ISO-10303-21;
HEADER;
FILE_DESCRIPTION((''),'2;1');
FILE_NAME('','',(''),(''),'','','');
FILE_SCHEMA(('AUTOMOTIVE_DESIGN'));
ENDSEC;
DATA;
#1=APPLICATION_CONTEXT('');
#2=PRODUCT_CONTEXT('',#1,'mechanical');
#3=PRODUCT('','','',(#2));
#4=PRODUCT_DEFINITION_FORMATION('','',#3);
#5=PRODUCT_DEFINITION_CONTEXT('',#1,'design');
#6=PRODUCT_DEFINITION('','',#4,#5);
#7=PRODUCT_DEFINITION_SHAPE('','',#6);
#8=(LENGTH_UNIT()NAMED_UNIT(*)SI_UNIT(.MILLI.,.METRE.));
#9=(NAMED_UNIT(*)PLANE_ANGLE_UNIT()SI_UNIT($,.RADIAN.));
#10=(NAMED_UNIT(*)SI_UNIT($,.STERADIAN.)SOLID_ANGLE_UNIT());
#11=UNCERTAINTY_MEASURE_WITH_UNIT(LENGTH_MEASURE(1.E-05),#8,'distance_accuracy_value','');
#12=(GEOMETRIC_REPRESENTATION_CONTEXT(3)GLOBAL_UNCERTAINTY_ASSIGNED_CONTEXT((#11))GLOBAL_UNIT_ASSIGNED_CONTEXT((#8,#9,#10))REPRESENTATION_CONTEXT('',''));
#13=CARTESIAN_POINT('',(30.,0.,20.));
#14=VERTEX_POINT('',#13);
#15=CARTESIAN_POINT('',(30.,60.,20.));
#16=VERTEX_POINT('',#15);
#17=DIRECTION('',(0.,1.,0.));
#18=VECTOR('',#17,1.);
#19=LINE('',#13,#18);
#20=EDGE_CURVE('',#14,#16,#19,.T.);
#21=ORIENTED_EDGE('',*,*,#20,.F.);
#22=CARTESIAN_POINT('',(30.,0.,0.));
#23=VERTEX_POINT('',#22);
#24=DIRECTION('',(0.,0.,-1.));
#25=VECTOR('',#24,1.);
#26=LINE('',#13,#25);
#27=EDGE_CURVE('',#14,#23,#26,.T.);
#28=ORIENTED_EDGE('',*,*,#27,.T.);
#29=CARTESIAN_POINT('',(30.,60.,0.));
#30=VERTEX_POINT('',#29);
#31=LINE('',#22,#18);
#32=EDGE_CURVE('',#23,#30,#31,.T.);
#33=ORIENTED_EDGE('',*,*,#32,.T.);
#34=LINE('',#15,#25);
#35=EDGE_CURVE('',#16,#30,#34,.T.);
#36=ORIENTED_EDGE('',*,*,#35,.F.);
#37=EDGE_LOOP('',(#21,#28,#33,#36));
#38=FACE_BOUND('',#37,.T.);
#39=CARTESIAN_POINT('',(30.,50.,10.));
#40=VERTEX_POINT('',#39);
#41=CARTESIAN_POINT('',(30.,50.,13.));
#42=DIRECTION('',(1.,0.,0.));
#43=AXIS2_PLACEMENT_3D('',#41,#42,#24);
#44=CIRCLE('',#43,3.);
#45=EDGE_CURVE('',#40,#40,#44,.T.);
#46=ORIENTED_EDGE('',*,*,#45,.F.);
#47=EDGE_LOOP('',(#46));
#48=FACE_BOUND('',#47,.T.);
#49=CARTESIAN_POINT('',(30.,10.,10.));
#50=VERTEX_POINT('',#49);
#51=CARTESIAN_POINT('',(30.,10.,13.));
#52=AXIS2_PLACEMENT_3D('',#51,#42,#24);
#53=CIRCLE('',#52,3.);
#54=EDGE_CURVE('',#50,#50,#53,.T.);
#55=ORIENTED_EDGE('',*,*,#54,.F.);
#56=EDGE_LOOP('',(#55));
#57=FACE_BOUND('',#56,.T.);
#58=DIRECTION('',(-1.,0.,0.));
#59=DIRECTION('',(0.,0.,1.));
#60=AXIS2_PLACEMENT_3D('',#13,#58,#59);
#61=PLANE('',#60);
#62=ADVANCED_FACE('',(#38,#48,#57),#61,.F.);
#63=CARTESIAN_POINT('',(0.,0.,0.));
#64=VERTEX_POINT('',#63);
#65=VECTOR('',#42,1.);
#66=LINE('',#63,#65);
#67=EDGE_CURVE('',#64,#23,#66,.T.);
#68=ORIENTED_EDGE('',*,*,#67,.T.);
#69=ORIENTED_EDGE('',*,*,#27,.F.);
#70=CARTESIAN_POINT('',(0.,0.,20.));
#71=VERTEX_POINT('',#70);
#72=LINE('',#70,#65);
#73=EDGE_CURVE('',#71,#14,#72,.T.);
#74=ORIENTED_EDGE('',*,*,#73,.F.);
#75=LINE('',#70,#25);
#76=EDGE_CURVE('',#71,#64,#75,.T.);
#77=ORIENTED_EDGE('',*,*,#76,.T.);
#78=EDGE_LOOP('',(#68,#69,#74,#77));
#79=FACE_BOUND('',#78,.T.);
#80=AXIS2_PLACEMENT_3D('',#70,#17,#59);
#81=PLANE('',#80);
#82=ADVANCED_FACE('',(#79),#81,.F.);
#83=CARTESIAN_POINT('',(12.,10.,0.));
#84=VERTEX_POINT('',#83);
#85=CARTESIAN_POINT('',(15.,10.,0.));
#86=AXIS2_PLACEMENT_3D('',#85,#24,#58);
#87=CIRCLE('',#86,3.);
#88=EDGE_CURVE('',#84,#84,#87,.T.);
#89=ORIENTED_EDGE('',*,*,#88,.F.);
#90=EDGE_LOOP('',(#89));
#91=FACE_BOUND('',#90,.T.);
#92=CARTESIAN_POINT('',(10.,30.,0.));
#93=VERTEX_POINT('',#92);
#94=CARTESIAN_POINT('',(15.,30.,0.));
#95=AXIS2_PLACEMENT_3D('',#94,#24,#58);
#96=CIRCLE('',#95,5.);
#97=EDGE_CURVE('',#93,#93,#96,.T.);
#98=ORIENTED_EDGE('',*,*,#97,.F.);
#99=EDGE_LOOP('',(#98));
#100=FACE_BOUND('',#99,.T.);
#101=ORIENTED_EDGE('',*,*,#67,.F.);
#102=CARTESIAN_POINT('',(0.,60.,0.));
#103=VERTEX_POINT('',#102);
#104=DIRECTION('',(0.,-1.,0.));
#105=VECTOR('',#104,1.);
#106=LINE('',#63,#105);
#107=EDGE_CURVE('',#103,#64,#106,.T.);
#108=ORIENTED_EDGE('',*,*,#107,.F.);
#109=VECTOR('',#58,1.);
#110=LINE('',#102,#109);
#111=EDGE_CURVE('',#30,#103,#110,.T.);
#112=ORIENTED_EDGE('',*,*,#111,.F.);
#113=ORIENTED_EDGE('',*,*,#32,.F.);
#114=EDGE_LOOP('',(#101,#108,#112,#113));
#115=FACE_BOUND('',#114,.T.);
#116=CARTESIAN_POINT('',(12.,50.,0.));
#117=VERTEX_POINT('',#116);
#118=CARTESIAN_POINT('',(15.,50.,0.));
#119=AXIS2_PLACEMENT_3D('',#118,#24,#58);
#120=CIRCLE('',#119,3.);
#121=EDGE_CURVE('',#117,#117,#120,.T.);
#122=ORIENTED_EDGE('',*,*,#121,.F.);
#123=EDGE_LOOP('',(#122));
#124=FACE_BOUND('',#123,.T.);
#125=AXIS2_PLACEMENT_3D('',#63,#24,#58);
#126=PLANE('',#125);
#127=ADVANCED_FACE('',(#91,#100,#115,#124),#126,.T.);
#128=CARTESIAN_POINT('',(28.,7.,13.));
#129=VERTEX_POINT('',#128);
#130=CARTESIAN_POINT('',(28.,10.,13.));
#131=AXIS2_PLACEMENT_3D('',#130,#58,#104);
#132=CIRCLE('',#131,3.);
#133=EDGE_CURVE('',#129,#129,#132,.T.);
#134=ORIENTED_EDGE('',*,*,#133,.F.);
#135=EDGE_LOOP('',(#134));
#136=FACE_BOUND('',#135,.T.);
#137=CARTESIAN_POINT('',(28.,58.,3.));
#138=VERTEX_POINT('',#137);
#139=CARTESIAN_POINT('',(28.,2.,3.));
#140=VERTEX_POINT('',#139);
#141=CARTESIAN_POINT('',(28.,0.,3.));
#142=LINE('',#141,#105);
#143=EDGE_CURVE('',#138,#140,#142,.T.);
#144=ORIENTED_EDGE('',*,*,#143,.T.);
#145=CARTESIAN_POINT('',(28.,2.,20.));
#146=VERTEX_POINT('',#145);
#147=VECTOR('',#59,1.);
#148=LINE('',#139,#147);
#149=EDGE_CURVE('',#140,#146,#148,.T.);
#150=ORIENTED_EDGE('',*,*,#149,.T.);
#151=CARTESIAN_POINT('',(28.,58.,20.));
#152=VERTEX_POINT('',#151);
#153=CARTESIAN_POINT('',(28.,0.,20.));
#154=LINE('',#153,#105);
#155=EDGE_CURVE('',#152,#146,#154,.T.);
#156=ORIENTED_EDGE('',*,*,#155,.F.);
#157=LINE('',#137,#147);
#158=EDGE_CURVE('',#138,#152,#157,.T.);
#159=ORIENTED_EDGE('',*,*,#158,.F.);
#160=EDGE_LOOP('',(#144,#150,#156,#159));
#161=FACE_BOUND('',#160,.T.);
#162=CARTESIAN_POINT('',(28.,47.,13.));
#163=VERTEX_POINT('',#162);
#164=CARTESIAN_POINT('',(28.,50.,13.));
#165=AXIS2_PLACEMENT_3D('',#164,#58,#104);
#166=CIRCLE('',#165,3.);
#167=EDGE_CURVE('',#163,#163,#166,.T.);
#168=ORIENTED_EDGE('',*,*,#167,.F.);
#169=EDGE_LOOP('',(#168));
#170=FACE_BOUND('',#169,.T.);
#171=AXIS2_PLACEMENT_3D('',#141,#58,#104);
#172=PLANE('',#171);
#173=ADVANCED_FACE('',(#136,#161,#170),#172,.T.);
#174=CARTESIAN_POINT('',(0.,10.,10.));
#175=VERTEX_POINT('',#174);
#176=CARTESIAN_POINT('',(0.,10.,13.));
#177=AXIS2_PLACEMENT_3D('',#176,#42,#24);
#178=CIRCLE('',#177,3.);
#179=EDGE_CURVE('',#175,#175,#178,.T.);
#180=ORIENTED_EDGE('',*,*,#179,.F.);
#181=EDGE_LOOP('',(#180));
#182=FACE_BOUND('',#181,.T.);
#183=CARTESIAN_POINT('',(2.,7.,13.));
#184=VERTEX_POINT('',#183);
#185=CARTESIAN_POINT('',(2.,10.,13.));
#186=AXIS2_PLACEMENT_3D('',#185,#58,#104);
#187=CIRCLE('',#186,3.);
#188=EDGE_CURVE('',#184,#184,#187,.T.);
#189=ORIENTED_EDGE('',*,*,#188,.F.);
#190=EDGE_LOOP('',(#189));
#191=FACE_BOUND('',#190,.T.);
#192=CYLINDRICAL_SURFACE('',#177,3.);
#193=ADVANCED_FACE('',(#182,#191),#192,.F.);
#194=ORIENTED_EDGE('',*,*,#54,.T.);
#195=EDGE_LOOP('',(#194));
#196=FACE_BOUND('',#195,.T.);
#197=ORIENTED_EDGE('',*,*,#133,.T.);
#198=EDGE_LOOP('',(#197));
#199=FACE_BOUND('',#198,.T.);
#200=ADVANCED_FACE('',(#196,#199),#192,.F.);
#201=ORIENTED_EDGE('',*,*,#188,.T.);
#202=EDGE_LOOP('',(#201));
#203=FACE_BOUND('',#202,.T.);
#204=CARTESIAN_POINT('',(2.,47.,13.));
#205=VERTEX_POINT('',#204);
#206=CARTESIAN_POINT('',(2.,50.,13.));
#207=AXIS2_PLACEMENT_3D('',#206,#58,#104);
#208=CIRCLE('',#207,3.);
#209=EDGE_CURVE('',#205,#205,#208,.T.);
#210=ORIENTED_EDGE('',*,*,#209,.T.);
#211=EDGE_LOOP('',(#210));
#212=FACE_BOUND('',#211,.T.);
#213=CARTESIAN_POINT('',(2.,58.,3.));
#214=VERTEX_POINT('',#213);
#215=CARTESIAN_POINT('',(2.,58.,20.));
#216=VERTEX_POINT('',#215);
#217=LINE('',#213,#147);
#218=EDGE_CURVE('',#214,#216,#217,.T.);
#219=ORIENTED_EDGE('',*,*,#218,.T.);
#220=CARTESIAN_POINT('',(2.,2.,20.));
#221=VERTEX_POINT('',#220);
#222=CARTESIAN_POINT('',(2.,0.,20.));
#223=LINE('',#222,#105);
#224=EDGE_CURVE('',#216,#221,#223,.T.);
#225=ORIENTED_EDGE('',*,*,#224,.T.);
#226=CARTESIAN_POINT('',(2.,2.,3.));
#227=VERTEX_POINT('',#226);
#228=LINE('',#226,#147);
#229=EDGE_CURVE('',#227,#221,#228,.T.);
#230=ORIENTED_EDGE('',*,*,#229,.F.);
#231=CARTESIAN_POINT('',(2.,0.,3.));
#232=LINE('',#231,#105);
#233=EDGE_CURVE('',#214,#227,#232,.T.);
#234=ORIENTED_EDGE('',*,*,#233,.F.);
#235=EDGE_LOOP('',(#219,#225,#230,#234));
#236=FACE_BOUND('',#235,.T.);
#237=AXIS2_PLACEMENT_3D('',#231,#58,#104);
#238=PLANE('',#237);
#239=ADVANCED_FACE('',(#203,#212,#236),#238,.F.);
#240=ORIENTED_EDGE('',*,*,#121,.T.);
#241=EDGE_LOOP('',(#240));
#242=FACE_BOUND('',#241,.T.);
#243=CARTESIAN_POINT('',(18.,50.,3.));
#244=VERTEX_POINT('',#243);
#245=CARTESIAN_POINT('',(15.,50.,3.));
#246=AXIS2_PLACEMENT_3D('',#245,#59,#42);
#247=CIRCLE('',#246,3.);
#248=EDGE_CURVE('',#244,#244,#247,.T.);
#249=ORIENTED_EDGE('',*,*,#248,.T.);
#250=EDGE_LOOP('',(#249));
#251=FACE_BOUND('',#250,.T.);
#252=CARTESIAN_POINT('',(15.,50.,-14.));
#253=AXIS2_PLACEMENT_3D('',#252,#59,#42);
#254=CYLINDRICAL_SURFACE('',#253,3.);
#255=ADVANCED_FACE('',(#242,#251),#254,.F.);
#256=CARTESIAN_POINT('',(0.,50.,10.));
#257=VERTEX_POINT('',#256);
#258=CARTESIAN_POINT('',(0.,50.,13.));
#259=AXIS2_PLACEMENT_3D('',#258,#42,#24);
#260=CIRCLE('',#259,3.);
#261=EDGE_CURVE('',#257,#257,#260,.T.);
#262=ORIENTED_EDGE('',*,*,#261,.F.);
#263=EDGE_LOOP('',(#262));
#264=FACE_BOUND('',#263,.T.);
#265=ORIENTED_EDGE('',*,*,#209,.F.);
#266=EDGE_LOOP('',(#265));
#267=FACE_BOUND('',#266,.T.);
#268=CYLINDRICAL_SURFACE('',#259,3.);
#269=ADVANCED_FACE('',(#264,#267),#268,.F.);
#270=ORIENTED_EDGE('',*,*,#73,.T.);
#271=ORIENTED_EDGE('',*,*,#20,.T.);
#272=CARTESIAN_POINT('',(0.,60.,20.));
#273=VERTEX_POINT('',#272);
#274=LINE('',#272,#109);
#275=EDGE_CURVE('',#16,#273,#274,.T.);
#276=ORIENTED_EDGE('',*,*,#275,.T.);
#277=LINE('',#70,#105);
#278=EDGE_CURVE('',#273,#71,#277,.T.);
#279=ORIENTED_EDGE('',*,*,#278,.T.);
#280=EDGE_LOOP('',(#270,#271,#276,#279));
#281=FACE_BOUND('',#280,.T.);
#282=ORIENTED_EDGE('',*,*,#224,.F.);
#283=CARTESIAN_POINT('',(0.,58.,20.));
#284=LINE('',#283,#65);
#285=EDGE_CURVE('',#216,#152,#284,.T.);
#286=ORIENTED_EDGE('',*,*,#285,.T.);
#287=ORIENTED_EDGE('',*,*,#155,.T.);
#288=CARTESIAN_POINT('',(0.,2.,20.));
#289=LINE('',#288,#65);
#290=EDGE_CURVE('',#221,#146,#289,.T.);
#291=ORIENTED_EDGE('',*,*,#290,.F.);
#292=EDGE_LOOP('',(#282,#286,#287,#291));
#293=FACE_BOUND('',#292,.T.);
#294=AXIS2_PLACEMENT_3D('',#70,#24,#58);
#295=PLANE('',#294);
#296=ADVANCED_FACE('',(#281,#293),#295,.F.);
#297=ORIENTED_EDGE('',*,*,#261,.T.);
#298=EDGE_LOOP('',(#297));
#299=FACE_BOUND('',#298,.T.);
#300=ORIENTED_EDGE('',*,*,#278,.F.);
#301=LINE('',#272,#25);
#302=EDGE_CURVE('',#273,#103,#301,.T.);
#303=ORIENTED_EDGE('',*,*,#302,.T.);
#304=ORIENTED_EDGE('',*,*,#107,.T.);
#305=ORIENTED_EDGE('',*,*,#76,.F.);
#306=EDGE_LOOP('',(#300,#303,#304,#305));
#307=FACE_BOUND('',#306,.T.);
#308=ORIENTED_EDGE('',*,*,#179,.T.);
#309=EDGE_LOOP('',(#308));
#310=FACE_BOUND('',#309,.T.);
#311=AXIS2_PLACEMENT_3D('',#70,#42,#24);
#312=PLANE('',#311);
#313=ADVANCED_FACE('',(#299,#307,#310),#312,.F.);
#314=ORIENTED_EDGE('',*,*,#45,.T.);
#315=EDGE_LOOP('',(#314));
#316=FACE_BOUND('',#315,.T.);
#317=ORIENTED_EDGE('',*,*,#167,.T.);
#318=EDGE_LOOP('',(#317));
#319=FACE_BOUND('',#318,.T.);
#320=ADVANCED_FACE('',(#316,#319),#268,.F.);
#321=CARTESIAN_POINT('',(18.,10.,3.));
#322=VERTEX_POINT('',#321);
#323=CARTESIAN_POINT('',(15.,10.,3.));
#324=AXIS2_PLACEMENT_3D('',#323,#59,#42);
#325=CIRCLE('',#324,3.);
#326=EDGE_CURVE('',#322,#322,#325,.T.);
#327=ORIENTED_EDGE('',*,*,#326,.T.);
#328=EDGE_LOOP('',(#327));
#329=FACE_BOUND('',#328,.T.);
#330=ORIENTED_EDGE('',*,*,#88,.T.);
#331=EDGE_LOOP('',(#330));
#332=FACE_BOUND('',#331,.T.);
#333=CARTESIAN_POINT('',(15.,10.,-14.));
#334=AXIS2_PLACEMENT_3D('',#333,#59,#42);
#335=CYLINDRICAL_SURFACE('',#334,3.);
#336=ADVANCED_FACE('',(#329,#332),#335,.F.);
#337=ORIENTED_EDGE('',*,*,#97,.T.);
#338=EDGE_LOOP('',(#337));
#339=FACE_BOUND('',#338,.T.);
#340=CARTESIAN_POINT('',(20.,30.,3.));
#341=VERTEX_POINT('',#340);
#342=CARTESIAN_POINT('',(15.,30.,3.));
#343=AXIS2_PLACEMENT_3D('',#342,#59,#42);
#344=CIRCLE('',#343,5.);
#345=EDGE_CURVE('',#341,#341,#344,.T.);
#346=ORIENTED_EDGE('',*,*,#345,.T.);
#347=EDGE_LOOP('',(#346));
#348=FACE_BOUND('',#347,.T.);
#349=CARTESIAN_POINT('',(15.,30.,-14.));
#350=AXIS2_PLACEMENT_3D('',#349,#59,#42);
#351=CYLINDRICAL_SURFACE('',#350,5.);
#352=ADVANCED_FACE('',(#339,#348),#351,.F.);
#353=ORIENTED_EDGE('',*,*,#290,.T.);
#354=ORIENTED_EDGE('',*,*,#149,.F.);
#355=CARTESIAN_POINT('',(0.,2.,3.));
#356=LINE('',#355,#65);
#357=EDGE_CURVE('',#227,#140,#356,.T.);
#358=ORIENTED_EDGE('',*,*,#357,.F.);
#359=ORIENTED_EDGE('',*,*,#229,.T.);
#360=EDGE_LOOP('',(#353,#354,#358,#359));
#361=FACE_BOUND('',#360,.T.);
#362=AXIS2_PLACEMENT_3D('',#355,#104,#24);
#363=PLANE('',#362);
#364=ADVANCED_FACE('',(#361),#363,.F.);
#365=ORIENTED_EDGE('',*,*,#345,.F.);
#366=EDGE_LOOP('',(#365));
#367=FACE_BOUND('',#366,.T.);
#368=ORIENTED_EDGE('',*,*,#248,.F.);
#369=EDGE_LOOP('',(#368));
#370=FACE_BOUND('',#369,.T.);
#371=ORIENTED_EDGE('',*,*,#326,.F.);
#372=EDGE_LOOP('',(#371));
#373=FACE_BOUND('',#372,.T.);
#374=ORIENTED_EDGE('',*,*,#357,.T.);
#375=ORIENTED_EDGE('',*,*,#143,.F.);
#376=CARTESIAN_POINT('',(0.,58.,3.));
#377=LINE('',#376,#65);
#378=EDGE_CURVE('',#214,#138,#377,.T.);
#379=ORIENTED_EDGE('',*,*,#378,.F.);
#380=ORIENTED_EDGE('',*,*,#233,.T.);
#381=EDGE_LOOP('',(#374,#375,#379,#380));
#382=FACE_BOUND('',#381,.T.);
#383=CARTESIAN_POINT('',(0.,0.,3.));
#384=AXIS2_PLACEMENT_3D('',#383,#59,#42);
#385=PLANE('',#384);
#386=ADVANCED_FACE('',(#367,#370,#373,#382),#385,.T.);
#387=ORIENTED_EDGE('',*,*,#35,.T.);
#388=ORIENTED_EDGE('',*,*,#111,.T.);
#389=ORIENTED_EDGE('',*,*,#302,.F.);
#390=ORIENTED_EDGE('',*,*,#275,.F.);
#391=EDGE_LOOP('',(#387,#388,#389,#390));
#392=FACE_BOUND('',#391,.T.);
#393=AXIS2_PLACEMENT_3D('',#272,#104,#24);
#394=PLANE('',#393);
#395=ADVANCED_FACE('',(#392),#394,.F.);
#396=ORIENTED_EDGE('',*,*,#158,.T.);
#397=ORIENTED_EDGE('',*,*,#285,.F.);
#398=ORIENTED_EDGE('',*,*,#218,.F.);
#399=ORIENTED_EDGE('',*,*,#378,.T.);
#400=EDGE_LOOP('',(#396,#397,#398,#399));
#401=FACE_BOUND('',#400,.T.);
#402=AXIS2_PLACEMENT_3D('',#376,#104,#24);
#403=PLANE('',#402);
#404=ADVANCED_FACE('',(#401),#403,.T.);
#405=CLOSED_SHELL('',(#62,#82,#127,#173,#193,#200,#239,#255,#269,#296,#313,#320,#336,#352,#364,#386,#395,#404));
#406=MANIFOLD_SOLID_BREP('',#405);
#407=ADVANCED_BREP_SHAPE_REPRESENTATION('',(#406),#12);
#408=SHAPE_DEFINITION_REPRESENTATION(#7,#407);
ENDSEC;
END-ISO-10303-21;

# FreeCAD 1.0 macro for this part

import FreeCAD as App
import Part
import Sketcher


def add_polygon(sketch, points):
    """Adds a closed chain of lines whose ends are joined by coincident constraints."""
    first, n = sketch.GeometryCount, len(points)
    for a, b in zip(points, points[1:] + points[:1]):
        sketch.addGeometry(Part.LineSegment(App.Vector(*a, 0), App.Vector(*b, 0)), False)
    for i in range(n):
        sketch.addConstraint(Sketcher.Constraint("Coincident", first + i, 2, first + (i + 1) % n, 1))

doc = App.newDocument("Part")
body = doc.addObject("PartDesign::Body", "Body")

# Sketch on XY plane
sketch1 = body.newObject("Sketcher::SketchObject", "Sketch")
sketch1.AttachmentSupport = (doc.getObject("XY_Plane"), [""])
sketch1.MapMode = "FlatFace"
add_polygon(sketch1, [(0, 60), (0, 0), (30, 0), (30, 60)])  # lines 0-3
sketch1.addConstraint([
    Sketcher.Constraint("Vertical", 0),
    Sketcher.Constraint("Horizontal", 1),
    Sketcher.Constraint("Vertical", 2),
    Sketcher.Constraint("Horizontal", 3),
    Sketcher.Constraint("Coincident", 0, 2, -1, 1),
    Sketcher.Constraint("DistanceX", 1, 1, 1, 2, 30.0),
    Sketcher.Constraint("DistanceY", 0, 2, 0, 1, 60.0),
])
pad1 = body.newObject("PartDesign::Pad", "Pad")
pad1.Profile = sketch1
pad1.Length = 20

# Sketch on XY plane
sketch2 = body.newObject("Sketcher::SketchObject", "Sketch001")
sketch2.AttachmentSupport = (doc.getObject("XY_Plane"), [""])
sketch2.MapMode = "FlatFace"
sketch2.AttachmentOffset = App.Placement(App.Vector(0, 0, 20), App.Rotation())
add_polygon(sketch2, [(28, 58), (2, 58), (2, 2), (28, 2)])  # lines 0-3
sketch2.addConstraint([
    Sketcher.Constraint("Horizontal", 0),
    Sketcher.Constraint("Vertical", 1),
    Sketcher.Constraint("Horizontal", 2),
    Sketcher.Constraint("Vertical", 3),
    Sketcher.Constraint("DistanceX", 0, 2, 0, 1, 26.0),
    Sketcher.Constraint("DistanceY", 1, 2, 1, 1, 56.0),
    Sketcher.Constraint("DistanceX", -1, 1, 0, 2, 2.0),
    Sketcher.Constraint("DistanceY", -1, 1, 0, 2, 58.0),
])
pocket1 = body.newObject("PartDesign::Pocket", "Pocket")
pocket1.Profile = sketch2
pocket1.Length = 17

# Sketch on XY plane
sketch3 = body.newObject("Sketcher::SketchObject", "Sketch002")
sketch3.AttachmentSupport = (doc.getObject("XY_Plane"), [""])
sketch3.MapMode = "FlatFace"
sketch3.AttachmentOffset = App.Placement(App.Vector(0, 0, 3), App.Rotation())
sketch3.addGeometry([
    Part.Circle(App.Vector(15, 10, 0), App.Vector(0, 0, 1), 3),
    Part.Circle(App.Vector(15, 50, 0), App.Vector(0, 0, 1), 3),
    Part.Circle(App.Vector(15, 30, 0), App.Vector(0, 0, 1), 5),
], False)
sketch3.addConstraint([
    Sketcher.Constraint("Equal", 0, 1),
    Sketcher.Constraint("Vertical", 0, 3, 1, 3),
    Sketcher.Constraint("Vertical", 1, 3, 2, 3),
    Sketcher.Constraint("Diameter", 0, 6.0),
    Sketcher.Constraint("Diameter", 2, 10.0),
    Sketcher.Constraint("DistanceX", -1, 1, 0, 3, 15.0),
    Sketcher.Constraint("DistanceY", -1, 1, 0, 3, 10.0),
    Sketcher.Constraint("DistanceY", -1, 1, 1, 3, 50.0),
    Sketcher.Constraint("DistanceY", -1, 1, 2, 3, 30.0),
])
pocket2 = body.newObject("PartDesign::Pocket", "Pocket001")
pocket2.Profile = sketch3
pocket2.Length = 17

# Sketch on YZ plane
sketch4 = body.newObject("Sketcher::SketchObject", "Sketch003")
sketch4.AttachmentSupport = (doc.getObject("YZ_Plane"), [""])
sketch4.MapMode = "FlatFace"
sketch4.AttachmentOffset = App.Placement(App.Vector(0, 0, 30), App.Rotation())
sketch4.addGeometry([
    Part.Circle(App.Vector(50, 13, 0), App.Vector(0, 0, 1), 3),
    Part.Circle(App.Vector(10, 13, 0), App.Vector(0, 0, 1), 3),
], False)
sketch4.addConstraint([
    Sketcher.Constraint("Equal", 0, 1),
    Sketcher.Constraint("Horizontal", 0, 3, 1, 3),
    Sketcher.Constraint("Diameter", 0, 6.0),
    Sketcher.Constraint("DistanceX", -1, 1, 0, 3, 50.0),
    Sketcher.Constraint("DistanceY", -1, 1, 0, 3, 13.0),
    Sketcher.Constraint("DistanceX", -1, 1, 1, 3, 10.0),
])
pocket3 = body.newObject("PartDesign::Pocket", "Pocket002")
pocket3.Profile = sketch4
pocket3.Type = "ThroughAll"

doc.recompute()
